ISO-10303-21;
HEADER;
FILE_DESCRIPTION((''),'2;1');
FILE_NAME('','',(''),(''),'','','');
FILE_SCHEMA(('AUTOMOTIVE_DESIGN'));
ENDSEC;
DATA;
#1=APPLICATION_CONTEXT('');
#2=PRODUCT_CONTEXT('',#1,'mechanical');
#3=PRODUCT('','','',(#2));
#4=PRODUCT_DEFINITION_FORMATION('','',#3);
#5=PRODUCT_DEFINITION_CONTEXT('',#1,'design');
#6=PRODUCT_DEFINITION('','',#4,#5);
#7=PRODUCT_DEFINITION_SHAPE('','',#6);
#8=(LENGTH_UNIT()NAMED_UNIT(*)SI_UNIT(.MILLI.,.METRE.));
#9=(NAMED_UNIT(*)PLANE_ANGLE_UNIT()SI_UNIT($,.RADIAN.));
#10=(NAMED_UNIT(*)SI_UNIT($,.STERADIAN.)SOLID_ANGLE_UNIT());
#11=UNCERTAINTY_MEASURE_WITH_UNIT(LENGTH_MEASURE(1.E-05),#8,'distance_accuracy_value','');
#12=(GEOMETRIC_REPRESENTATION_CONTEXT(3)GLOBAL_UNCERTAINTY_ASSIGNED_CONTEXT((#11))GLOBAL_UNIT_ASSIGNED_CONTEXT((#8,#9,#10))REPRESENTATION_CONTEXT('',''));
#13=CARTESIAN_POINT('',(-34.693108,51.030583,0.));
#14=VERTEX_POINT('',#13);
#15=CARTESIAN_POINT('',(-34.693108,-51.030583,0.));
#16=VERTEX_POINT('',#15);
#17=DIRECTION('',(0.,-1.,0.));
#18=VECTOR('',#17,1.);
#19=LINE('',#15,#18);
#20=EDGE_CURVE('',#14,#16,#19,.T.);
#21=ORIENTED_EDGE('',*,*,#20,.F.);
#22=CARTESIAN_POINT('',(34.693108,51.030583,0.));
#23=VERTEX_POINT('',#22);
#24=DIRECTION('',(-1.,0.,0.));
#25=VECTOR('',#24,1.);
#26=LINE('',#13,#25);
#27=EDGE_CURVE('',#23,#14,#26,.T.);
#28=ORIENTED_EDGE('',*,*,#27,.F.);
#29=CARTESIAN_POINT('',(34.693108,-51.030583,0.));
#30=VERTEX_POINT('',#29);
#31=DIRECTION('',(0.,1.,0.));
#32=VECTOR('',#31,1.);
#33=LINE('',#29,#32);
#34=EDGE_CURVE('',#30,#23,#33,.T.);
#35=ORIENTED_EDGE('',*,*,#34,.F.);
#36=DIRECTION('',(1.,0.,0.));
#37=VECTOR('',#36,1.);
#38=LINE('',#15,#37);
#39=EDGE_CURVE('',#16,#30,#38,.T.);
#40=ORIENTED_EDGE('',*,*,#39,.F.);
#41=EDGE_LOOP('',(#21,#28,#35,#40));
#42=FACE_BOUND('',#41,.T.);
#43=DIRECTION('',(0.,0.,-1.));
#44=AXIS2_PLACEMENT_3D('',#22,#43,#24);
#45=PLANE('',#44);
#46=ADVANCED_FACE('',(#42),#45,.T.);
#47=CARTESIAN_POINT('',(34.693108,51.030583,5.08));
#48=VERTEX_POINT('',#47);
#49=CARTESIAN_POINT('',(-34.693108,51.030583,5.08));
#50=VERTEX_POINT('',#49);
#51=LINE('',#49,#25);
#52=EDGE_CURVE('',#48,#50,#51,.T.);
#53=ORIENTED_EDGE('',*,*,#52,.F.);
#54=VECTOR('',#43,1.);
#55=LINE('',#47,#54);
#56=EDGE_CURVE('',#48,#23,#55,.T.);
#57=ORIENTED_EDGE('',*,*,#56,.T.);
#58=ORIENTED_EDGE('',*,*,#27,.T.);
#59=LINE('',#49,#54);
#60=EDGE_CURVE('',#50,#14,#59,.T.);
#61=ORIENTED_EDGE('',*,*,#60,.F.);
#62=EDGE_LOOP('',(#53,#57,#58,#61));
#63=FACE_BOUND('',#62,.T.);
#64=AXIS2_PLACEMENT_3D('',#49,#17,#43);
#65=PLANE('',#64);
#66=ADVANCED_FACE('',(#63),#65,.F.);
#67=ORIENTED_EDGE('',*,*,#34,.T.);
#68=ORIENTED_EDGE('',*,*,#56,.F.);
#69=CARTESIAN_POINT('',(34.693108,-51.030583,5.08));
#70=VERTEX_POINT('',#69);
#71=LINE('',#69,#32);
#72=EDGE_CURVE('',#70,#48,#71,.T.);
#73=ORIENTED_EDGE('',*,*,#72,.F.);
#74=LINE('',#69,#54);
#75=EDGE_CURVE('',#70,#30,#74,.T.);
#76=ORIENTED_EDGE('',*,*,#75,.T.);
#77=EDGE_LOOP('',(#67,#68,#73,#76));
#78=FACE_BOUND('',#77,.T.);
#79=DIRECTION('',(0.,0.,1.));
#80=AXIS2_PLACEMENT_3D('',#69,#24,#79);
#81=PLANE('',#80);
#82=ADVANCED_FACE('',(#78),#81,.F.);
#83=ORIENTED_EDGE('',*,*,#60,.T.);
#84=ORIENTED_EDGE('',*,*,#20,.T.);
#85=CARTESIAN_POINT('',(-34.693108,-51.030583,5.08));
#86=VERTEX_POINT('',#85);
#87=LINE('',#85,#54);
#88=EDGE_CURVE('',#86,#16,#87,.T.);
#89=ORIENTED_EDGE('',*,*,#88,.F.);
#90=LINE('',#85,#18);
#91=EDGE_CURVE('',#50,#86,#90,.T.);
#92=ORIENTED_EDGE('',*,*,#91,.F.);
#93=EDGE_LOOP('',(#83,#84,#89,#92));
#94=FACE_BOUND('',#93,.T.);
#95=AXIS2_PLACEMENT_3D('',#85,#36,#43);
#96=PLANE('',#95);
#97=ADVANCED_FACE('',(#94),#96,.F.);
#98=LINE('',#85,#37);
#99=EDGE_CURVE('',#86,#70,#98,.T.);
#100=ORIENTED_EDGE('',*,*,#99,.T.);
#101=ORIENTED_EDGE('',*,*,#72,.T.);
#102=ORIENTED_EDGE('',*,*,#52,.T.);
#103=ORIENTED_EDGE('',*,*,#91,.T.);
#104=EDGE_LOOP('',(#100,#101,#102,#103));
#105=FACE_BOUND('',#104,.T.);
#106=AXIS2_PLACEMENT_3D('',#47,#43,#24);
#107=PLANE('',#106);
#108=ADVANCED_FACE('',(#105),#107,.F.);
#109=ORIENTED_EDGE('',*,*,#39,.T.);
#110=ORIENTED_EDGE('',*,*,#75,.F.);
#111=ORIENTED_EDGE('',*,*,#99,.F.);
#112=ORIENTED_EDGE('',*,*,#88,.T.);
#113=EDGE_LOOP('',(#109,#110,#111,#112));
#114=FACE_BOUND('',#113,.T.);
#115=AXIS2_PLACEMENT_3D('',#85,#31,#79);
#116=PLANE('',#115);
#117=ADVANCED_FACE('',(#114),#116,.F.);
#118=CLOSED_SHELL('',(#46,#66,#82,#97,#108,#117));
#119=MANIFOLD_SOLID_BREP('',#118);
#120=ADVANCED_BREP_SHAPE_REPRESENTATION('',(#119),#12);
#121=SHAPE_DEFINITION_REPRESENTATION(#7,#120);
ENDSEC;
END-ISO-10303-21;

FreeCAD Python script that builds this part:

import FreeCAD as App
import Part
import Sketcher

V = App.Vector
Q = App.Units.Quantity

doc = App.newDocument("Part")
body = doc.addObject("PartDesign::Body", "Body")

sketch1 = body.newObject("Sketcher::SketchObject", "Sketch")
sketch1.AttachmentSupport = (doc.getObject("XY_Plane"), [""])
sketch1.MapMode = "FlatFace"
sketch1.addGeometry(Part.LineSegment(V(-34.693108, 51.030583, 0), V(-34.693108, -51.030583, 0)), False)
sketch1.addGeometry(Part.LineSegment(V(-34.693108, -51.030583, 0), V(34.693108, -51.030583, 0)), False)
sketch1.addGeometry(Part.LineSegment(V(34.693108, -51.030583, 0), V(34.693108, 51.030583, 0)), False)
sketch1.addGeometry(Part.LineSegment(V(34.693108, 51.030583, 0), V(-34.693108, 51.030583, 0)), False)
sketch1.addConstraint(Sketcher.Constraint("Coincident", 0, 2, 1, 1))
sketch1.addConstraint(Sketcher.Constraint("Coincident", 1, 2, 2, 1))
sketch1.addConstraint(Sketcher.Constraint("Coincident", 2, 2, 3, 1))
sketch1.addConstraint(Sketcher.Constraint("Coincident", 3, 2, 0, 1))
sketch1.addConstraint(Sketcher.Constraint("Vertical", 0))
sketch1.addConstraint(Sketcher.Constraint("Horizontal", 1))
sketch1.addConstraint(Sketcher.Constraint("Vertical", 2))
sketch1.addConstraint(Sketcher.Constraint("Horizontal", 3))
sketch1.addConstraint(Sketcher.Constraint("Symmetric", 0, 2, 2, 2, -1, 1))
sketch1.addConstraint(Sketcher.Constraint("DistanceX", 1, 1, 1, 2, 69.386217))
sketch1.addConstraint(Sketcher.Constraint("DistanceY", 0, 2, 0, 1, 102.061166))
pad1 = body.newObject("PartDesign::Pad", "Pad")
pad1.Profile = sketch1
pad1.Length = Q("0.2 in")

doc.recompute()
